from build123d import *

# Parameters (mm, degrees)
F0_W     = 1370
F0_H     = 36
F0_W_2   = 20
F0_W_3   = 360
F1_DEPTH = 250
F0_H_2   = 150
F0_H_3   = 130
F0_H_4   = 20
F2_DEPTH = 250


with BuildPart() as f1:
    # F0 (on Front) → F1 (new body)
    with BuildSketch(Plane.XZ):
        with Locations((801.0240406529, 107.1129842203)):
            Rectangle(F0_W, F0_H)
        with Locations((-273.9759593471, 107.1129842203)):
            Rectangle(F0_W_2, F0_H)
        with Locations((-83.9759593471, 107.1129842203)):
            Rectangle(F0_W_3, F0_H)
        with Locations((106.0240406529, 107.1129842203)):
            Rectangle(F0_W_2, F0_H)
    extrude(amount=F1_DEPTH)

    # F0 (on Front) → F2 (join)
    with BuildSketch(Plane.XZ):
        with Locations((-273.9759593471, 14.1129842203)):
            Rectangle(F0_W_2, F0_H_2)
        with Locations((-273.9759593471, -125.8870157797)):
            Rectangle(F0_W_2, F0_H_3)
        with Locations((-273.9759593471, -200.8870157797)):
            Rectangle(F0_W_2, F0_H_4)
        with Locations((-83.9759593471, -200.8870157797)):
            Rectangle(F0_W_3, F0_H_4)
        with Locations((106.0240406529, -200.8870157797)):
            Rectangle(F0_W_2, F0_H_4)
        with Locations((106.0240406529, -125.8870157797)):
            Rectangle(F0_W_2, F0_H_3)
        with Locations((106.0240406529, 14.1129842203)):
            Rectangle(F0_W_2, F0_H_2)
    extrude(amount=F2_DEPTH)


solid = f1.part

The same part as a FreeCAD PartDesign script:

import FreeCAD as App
import Part
import Sketcher

V = App.Vector
Q = App.Units.Quantity


def add_polygon(sketch, points):
    """Adds a closed chain of lines whose ends are joined by coincident constraints."""
    first, n = sketch.GeometryCount, len(points)
    for a, b in zip(points, points[1:] + points[:1]):
        sketch.addGeometry(Part.LineSegment(App.Vector(*a, 0), App.Vector(*b, 0)), False)
    for i in range(n):
        sketch.addConstraint(Sketcher.Constraint("Coincident", first + i, 2, first + (i + 1) % n, 1))

doc = App.newDocument("Part")
params = doc.addObject("Spreadsheet::Sheet", "Params")
for row, (alias, value) in enumerate([
    ("sketch1_width", "1770 mm"),
    ("sketch1_height", "36 mm"),
    ("pad1_length", "250 mm"),
    ("sketch2_width", "400 mm"),
    ("sketch2_width2", "20 mm"),
    ("sketch2_height", "300 mm"),
    ("sketch2_height2", "280 mm"),
    ("pad2_length", "250 mm"),
], start=1):
    params.set(f"A{row}", alias)
    params.set(f"B{row}", "=" + value)
    params.setAlias(f"B{row}", alias)

body = doc.addObject("PartDesign::Body", "Body")

# Sketch on XZ plane
sketch1 = doc.addObject("Sketcher::SketchObject", "Sketch")
body.addObject(sketch1)
sketch1.AttachmentSupport = (doc.XZ_Plane, [""])
sketch1.MapMode = "FlatFace"
add_polygon(sketch1, [(1486, 89), (1486, 125), (-284, 125), (-284, 89)])  # lines 0-3
sketch1.addConstraint([
    Sketcher.Constraint("Vertical", 0),
    Sketcher.Constraint("Horizontal", 1),
    Sketcher.Constraint("Vertical", 2),
    Sketcher.Constraint("Horizontal", 3),
    Sketcher.Constraint("DistanceX", 1, 2, 1, 1, Q("1770 mm")),
    Sketcher.Constraint("DistanceY", 0, 1, 0, 2, Q("36 mm")),
    Sketcher.Constraint("DistanceX", -1, 1, 0, 2, Q("1486.024041 mm")),
    Sketcher.Constraint("DistanceY", -1, 1, 0, 2, Q("125.112984 mm")),
])
sketch1.setExpression("Constraints[8]", "Params.sketch1_width")
sketch1.setExpression("Constraints[9]", "Params.sketch1_height")
pad1 = doc.addObject("PartDesign::Pad", "Pad")
body.addObject(pad1)
pad1.Profile = sketch1
pad1.setExpression("Length", "Params.pad1_length")

# Sketch on XZ plane
sketch2 = doc.addObject("Sketcher::SketchObject", "Sketch001")
body.addObject(sketch2)
sketch2.AttachmentSupport = (doc.XZ_Plane, [""])
sketch2.MapMode = "FlatFace"
add_polygon(sketch2, [(-284, 89), (-284, -211), (116, -211), (116, 89), (96, 89), (96, -191), (-264, -191), (-264, 89)])  # lines 0-7
sketch2.addConstraint([
    Sketcher.Constraint("Vertical", 0),
    Sketcher.Constraint("Horizontal", 1),
    Sketcher.Constraint("Vertical", 2),
    Sketcher.Constraint("Horizontal", 3),
    Sketcher.Constraint("Vertical", 4),
    Sketcher.Constraint("Horizontal", 5),
    Sketcher.Constraint("Vertical", 6),
    Sketcher.Constraint("Horizontal", 7),
    Sketcher.Constraint("Horizontal", 3, 2, 6, 2),
    Sketcher.Constraint("Equal", 3, 7),
    Sketcher.Constraint("DistanceX", 1, 1, 1, 2, Q("400 mm")),
    Sketcher.Constraint("DistanceX", 3, 2, 3, 1, Q("20 mm")),
    Sketcher.Constraint("DistanceY", 0, 2, 0, 1, Q("300 mm")),
    Sketcher.Constraint("DistanceY", 4, 2, 4, 1, Q("280 mm")),
    Sketcher.Constraint("DistanceX", 0, 2, -1, 1, Q("283.975959 mm")),
    Sketcher.Constraint("DistanceY", 0, 2, -1, 1, Q("210.887016 mm")),
])
sketch2.setExpression("Constraints[18]", "Params.sketch2_width")
sketch2.setExpression("Constraints[19]", "Params.sketch2_width2")
sketch2.setExpression("Constraints[20]", "Params.sketch2_height")
sketch2.setExpression("Constraints[21]", "Params.sketch2_height2")
pad2 = doc.addObject("PartDesign::Pad", "Pad001")
body.addObject(pad2)
pad2.Profile = sketch2
pad2.setExpression("Length", "Params.pad2_length")

doc.recompute()
